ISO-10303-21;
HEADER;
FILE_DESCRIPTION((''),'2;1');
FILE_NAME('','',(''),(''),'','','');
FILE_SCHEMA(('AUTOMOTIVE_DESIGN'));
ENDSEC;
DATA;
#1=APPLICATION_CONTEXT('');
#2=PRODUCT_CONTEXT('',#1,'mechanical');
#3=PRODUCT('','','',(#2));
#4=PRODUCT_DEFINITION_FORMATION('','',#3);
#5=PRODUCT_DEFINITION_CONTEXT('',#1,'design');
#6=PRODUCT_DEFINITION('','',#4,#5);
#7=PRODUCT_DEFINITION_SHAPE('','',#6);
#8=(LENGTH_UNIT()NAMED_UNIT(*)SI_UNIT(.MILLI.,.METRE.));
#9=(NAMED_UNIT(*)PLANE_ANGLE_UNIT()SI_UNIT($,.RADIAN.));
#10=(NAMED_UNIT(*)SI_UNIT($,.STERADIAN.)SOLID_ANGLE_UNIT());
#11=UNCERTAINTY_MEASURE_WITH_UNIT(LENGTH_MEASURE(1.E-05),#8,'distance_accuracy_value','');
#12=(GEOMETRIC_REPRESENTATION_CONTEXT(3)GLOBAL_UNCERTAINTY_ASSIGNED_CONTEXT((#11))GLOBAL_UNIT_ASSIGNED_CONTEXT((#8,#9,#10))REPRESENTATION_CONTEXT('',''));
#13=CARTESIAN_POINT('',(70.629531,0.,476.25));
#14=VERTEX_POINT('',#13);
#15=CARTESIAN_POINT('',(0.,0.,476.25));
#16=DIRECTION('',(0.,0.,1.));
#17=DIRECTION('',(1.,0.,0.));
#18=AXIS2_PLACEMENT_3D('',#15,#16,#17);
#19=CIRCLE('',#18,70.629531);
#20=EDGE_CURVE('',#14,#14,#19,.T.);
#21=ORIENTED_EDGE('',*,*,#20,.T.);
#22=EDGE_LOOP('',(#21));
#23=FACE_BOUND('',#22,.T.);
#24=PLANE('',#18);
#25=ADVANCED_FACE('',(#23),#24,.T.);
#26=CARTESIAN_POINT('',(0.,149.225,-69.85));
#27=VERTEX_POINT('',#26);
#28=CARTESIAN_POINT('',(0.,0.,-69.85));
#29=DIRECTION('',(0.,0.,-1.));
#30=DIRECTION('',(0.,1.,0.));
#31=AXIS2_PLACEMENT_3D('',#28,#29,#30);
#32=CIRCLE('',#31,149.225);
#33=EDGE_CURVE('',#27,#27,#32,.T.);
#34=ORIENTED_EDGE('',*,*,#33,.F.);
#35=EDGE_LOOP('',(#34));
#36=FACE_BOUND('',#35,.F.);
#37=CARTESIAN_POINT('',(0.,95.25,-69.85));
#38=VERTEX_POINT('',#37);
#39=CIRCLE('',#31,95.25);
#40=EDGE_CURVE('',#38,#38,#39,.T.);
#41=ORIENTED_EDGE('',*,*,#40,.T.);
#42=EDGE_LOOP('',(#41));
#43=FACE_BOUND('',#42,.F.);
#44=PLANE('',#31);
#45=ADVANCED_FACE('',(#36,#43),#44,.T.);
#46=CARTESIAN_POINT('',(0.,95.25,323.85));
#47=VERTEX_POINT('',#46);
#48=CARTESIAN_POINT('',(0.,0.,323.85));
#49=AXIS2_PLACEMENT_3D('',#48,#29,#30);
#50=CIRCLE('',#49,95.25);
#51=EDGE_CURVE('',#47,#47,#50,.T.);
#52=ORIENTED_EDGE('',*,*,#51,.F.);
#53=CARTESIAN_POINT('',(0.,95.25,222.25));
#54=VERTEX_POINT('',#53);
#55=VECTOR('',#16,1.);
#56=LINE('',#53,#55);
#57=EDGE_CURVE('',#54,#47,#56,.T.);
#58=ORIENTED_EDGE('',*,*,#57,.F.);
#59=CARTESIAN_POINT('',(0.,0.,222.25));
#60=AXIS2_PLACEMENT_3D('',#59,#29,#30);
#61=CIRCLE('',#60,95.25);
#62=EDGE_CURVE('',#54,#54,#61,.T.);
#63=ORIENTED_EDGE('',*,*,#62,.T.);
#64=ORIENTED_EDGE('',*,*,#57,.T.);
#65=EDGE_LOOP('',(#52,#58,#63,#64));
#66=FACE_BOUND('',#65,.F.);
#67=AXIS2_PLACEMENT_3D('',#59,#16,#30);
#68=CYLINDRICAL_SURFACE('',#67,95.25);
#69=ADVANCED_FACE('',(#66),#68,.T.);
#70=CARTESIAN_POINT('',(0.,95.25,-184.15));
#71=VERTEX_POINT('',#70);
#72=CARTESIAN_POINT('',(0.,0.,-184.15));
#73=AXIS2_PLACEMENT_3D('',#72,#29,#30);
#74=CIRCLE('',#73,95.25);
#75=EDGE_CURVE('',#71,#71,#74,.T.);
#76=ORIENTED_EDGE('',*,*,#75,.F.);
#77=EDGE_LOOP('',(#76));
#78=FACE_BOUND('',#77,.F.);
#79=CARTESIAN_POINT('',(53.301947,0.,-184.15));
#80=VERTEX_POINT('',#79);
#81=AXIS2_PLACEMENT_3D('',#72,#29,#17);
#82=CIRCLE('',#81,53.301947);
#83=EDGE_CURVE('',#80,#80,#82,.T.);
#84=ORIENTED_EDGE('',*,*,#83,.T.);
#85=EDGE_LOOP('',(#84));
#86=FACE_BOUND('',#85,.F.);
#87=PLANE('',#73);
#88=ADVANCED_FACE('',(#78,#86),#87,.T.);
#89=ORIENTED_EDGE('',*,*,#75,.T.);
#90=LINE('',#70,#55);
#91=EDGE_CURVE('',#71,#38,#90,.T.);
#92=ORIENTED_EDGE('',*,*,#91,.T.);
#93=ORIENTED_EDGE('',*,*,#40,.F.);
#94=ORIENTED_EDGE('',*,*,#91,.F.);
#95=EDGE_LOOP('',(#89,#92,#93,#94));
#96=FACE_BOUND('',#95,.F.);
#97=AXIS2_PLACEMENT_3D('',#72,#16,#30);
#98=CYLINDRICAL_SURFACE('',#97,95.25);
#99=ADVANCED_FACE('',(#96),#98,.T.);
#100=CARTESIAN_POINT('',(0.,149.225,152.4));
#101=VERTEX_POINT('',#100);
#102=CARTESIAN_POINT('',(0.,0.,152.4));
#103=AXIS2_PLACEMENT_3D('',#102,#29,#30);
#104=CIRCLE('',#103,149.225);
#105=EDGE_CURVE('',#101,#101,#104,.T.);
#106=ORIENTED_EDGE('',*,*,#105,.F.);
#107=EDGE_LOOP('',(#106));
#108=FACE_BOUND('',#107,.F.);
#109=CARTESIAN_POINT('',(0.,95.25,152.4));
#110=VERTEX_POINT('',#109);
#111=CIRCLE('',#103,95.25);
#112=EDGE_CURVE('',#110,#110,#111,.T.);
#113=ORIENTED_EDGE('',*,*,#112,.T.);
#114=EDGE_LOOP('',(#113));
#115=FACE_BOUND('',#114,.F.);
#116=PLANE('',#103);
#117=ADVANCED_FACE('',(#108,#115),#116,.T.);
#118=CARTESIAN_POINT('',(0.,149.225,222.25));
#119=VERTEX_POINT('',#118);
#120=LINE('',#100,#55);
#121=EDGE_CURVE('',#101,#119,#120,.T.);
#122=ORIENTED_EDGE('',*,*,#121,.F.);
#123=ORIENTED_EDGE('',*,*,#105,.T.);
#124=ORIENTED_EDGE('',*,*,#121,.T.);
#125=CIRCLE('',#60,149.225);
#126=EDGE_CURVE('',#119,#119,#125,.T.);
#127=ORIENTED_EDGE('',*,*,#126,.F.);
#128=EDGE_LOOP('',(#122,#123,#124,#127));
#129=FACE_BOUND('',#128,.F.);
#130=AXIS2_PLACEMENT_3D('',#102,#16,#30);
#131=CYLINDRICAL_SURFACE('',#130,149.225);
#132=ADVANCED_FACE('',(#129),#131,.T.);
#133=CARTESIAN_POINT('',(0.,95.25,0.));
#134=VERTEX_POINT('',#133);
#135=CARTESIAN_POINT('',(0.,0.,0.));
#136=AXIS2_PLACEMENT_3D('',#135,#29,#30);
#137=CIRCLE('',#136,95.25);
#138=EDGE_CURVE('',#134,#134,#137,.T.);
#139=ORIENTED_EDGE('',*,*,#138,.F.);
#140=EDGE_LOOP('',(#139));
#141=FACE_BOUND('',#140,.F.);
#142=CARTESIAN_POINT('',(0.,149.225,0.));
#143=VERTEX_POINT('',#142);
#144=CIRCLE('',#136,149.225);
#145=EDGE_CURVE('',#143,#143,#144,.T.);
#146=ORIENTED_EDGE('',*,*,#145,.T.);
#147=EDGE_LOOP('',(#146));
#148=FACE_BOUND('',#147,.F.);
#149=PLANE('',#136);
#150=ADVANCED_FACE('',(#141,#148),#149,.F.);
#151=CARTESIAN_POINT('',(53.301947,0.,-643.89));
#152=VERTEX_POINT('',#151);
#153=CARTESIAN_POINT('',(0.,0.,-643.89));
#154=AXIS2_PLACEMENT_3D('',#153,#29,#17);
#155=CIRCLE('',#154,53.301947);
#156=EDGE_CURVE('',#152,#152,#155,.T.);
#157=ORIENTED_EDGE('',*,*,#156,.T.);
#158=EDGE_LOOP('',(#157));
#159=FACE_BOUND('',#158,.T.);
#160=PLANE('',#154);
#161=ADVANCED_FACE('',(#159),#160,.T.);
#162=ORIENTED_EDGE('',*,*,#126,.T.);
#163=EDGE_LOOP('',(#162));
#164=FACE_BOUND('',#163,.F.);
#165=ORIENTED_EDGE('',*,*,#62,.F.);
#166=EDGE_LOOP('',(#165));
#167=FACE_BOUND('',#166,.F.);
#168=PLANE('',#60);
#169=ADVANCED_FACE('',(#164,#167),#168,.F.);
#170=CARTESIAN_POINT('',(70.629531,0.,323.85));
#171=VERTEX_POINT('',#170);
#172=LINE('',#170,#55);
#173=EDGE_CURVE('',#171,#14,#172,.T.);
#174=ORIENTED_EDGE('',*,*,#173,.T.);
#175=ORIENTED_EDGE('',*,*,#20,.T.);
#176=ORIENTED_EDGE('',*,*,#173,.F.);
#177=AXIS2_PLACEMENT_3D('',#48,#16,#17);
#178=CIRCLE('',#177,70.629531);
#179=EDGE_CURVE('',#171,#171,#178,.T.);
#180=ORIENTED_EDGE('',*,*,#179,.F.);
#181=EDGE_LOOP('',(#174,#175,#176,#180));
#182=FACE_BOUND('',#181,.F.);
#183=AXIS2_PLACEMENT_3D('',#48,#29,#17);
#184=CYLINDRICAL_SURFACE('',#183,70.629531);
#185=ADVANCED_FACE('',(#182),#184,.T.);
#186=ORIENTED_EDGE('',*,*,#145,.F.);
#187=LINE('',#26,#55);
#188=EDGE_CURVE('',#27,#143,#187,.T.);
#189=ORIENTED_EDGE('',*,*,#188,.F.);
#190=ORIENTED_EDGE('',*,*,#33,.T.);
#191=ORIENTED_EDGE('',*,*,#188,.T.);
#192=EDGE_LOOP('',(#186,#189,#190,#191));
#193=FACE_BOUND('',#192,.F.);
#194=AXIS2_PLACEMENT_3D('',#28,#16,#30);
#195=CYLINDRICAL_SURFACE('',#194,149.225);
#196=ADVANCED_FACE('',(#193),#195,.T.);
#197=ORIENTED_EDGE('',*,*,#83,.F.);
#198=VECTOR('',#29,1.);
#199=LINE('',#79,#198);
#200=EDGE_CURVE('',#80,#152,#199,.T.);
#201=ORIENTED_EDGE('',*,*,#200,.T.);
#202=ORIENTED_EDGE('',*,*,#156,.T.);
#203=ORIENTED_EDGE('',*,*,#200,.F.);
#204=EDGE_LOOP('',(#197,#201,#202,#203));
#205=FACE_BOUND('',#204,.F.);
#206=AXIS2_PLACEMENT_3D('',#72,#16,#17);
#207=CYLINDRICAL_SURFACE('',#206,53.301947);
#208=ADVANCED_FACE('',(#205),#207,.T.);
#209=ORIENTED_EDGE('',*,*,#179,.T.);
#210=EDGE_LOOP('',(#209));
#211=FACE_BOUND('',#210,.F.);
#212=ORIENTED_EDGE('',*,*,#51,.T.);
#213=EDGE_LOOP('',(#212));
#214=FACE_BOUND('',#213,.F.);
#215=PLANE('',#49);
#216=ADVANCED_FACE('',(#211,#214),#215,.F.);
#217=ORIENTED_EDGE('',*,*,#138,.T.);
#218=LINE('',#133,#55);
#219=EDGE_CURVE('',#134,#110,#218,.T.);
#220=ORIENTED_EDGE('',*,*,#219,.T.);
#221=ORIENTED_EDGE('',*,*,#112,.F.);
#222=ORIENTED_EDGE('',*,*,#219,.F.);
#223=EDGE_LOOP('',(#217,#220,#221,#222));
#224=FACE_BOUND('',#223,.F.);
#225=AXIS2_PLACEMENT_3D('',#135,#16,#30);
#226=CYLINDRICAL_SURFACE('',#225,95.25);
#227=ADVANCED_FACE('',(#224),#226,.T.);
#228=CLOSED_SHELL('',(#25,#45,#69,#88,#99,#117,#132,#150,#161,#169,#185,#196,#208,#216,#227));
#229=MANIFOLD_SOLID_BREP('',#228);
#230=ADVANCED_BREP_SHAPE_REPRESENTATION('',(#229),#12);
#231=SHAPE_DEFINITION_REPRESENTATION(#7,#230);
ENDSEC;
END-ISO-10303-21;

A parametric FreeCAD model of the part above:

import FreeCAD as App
import Part
import Sketcher
Q = App.Units.Quantity

doc = App.newDocument("Part")
body = doc.addObject("PartDesign::Body", "Body")

# Sketch on YZ plane
sketch1 = body.newObject("Sketcher::SketchObject", "Sketch")
sketch1.AttachmentSupport = (doc.getObject("YZ_Plane"), [""])
sketch1.MapMode = "FlatFace"
sketch1.addGeometry(Part.LineSegment(App.Vector(95.25, 323.85, 0), App.Vector(0, 323.85, 0)), False)
sketch1.addGeometry(Part.LineSegment(App.Vector(0, 323.85, 0), App.Vector(0, -184.15, 0)), False)
sketch1.addGeometry(Part.LineSegment(App.Vector(0, -184.15, 0), App.Vector(95.25, -184.15, 0)), False)
sketch1.addGeometry(Part.LineSegment(App.Vector(95.25, -184.15, 0), App.Vector(95.25, -69.85, 0)), False)
sketch1.addGeometry(Part.LineSegment(App.Vector(95.25, -69.85, 0), App.Vector(149.225, -69.85, 0)), False)
sketch1.addGeometry(Part.LineSegment(App.Vector(149.225, -69.85, 0), App.Vector(149.225, 0, 0)), False)
sketch1.addGeometry(Part.LineSegment(App.Vector(149.225, 0, 0), App.Vector(95.25, 0, 0)), False)
sketch1.addGeometry(Part.LineSegment(App.Vector(95.25, 0, 0), App.Vector(95.25, 152.4, 0)), False)
sketch1.addGeometry(Part.LineSegment(App.Vector(95.25, 152.4, 0), App.Vector(149.225, 152.4, 0)), False)
sketch1.addGeometry(Part.LineSegment(App.Vector(149.225, 152.4, 0), App.Vector(149.225, 222.25, 0)), False)
sketch1.addGeometry(Part.LineSegment(App.Vector(149.225, 222.25, 0), App.Vector(95.25, 222.25, 0)), False)
sketch1.addGeometry(Part.LineSegment(App.Vector(95.25, 222.25, 0), App.Vector(95.25, 323.85, 0)), False)
sketch1.addConstraint(Sketcher.Constraint("Coincident", 0, 2, 1, 1))
sketch1.addConstraint(Sketcher.Constraint("Coincident", 1, 2, 2, 1))
sketch1.addConstraint(Sketcher.Constraint("Coincident", 2, 2, 3, 1))
sketch1.addConstraint(Sketcher.Constraint("Coincident", 3, 2, 4, 1))
sketch1.addConstraint(Sketcher.Constraint("Coincident", 4, 2, 5, 1))
sketch1.addConstraint(Sketcher.Constraint("Coincident", 5, 2, 6, 1))
sketch1.addConstraint(Sketcher.Constraint("Coincident", 6, 2, 7, 1))
sketch1.addConstraint(Sketcher.Constraint("Coincident", 7, 2, 8, 1))
sketch1.addConstraint(Sketcher.Constraint("Coincident", 8, 2, 9, 1))
sketch1.addConstraint(Sketcher.Constraint("Coincident", 9, 2, 10, 1))
sketch1.addConstraint(Sketcher.Constraint("Coincident", 10, 2, 11, 1))
sketch1.addConstraint(Sketcher.Constraint("Coincident", 11, 2, 0, 1))
sketch1.addConstraint(Sketcher.Constraint("Horizontal", 0))
sketch1.addConstraint(Sketcher.Constraint("Vertical", 1))
sketch1.addConstraint(Sketcher.Constraint("Horizontal", 2))
sketch1.addConstraint(Sketcher.Constraint("Vertical", 3))
sketch1.addConstraint(Sketcher.Constraint("Horizontal", 4))
sketch1.addConstraint(Sketcher.Constraint("Vertical", 5))
sketch1.addConstraint(Sketcher.Constraint("Horizontal", 6))
sketch1.addConstraint(Sketcher.Constraint("Vertical", 7))
sketch1.addConstraint(Sketcher.Constraint("Horizontal", 8))
sketch1.addConstraint(Sketcher.Constraint("Vertical", 9))
sketch1.addConstraint(Sketcher.Constraint("Horizontal", 10))
sketch1.addConstraint(Sketcher.Constraint("Vertical", 11))
sketch1.addConstraint(Sketcher.Constraint("PointOnObject", 0, 2, -2))
sketch1.addConstraint(Sketcher.Constraint("PointOnObject", 5, 2, -1))
sketch1.addConstraint(Sketcher.Constraint("Vertical", 3, 2, 6, 2))
sketch1.addConstraint(Sketcher.Constraint("Vertical", 5, 2, 8, 2))
sketch1.addConstraint(Sketcher.Constraint("Vertical", 7, 2, 10, 2))
sketch1.addConstraint(Sketcher.Constraint("Equal", 5, 9))
sketch1.addConstraint(Sketcher.Constraint("DistanceY", 1, 2, 1, 1, Q("20 in")))
sketch1.addConstraint(Sketcher.Constraint("DistanceY", 7, 1, 7, 2, Q("6 in")))
sketch1.addConstraint(Sketcher.Constraint("DistanceY", 11, 1, 11, 2, Q("4 in")))
sketch1.addConstraint(Sketcher.Constraint("DistanceY", 3, 1, 3, 2, Q("4.5 in")))
sketch1.addConstraint(Sketcher.Constraint("DistanceX", 0, 2, 0, 1, Q("3.75 in")))
sketch1.addConstraint(Sketcher.Constraint("DistanceX", 4, 1, 4, 2, Q("2.125 in")))
revolution = body.newObject("PartDesign::Revolution", "Revolution")
revolution.Profile = sketch1
revolution.ReferenceAxis = (sketch1, ["V_Axis"])
revolution.Angle = 360

# Sketch on XY plane
sketch2 = body.newObject("Sketcher::SketchObject", "Sketch001")
sketch2.AttachmentSupport = (doc.getObject("XY_Plane"), [""])
sketch2.MapMode = "FlatFace"
sketch2.AttachmentOffset = App.Placement(App.Vector(0, 0, 12.75 * 25.4), App.Rotation())
sketch2.addGeometry(Part.Circle(App.Vector(0, 0, 0), App.Vector(0, 0, 1), 70.629531), False)
sketch2.addConstraint(Sketcher.Constraint("Coincident", 0, 3, -1, 1))
sketch2.addConstraint(Sketcher.Constraint("Diameter", 0, Q("141.259062 mm")))
pad1 = body.newObject("PartDesign::Pad", "Pad")
pad1.Profile = sketch2
pad1.Length = Q("6 in")

# Sketch on XY plane
sketch3 = body.newObject("Sketcher::SketchObject", "Sketch002")
sketch3.AttachmentSupport = (doc.getObject("XY_Plane"), [""])
sketch3.MapMode = "FlatFace"
sketch3.AttachmentOffset = App.Placement(App.Vector(0, 0, -7.25 * 25.4), App.Rotation())
sketch3.addGeometry(Part.Circle(App.Vector(0, 0, 0), App.Vector(0, 0, 1), 53.301947), False)
sketch3.addConstraint(Sketcher.Constraint("Coincident", 0, 3, -1, 1))
sketch3.addConstraint(Sketcher.Constraint("Diameter", 0, Q("106.603894 mm")))
pad2 = body.newObject("PartDesign::Pad", "Pad001")
pad2.Profile = sketch3
pad2.Length = Q("18.1 in")
pad2.Reversed = True

doc.recompute()
